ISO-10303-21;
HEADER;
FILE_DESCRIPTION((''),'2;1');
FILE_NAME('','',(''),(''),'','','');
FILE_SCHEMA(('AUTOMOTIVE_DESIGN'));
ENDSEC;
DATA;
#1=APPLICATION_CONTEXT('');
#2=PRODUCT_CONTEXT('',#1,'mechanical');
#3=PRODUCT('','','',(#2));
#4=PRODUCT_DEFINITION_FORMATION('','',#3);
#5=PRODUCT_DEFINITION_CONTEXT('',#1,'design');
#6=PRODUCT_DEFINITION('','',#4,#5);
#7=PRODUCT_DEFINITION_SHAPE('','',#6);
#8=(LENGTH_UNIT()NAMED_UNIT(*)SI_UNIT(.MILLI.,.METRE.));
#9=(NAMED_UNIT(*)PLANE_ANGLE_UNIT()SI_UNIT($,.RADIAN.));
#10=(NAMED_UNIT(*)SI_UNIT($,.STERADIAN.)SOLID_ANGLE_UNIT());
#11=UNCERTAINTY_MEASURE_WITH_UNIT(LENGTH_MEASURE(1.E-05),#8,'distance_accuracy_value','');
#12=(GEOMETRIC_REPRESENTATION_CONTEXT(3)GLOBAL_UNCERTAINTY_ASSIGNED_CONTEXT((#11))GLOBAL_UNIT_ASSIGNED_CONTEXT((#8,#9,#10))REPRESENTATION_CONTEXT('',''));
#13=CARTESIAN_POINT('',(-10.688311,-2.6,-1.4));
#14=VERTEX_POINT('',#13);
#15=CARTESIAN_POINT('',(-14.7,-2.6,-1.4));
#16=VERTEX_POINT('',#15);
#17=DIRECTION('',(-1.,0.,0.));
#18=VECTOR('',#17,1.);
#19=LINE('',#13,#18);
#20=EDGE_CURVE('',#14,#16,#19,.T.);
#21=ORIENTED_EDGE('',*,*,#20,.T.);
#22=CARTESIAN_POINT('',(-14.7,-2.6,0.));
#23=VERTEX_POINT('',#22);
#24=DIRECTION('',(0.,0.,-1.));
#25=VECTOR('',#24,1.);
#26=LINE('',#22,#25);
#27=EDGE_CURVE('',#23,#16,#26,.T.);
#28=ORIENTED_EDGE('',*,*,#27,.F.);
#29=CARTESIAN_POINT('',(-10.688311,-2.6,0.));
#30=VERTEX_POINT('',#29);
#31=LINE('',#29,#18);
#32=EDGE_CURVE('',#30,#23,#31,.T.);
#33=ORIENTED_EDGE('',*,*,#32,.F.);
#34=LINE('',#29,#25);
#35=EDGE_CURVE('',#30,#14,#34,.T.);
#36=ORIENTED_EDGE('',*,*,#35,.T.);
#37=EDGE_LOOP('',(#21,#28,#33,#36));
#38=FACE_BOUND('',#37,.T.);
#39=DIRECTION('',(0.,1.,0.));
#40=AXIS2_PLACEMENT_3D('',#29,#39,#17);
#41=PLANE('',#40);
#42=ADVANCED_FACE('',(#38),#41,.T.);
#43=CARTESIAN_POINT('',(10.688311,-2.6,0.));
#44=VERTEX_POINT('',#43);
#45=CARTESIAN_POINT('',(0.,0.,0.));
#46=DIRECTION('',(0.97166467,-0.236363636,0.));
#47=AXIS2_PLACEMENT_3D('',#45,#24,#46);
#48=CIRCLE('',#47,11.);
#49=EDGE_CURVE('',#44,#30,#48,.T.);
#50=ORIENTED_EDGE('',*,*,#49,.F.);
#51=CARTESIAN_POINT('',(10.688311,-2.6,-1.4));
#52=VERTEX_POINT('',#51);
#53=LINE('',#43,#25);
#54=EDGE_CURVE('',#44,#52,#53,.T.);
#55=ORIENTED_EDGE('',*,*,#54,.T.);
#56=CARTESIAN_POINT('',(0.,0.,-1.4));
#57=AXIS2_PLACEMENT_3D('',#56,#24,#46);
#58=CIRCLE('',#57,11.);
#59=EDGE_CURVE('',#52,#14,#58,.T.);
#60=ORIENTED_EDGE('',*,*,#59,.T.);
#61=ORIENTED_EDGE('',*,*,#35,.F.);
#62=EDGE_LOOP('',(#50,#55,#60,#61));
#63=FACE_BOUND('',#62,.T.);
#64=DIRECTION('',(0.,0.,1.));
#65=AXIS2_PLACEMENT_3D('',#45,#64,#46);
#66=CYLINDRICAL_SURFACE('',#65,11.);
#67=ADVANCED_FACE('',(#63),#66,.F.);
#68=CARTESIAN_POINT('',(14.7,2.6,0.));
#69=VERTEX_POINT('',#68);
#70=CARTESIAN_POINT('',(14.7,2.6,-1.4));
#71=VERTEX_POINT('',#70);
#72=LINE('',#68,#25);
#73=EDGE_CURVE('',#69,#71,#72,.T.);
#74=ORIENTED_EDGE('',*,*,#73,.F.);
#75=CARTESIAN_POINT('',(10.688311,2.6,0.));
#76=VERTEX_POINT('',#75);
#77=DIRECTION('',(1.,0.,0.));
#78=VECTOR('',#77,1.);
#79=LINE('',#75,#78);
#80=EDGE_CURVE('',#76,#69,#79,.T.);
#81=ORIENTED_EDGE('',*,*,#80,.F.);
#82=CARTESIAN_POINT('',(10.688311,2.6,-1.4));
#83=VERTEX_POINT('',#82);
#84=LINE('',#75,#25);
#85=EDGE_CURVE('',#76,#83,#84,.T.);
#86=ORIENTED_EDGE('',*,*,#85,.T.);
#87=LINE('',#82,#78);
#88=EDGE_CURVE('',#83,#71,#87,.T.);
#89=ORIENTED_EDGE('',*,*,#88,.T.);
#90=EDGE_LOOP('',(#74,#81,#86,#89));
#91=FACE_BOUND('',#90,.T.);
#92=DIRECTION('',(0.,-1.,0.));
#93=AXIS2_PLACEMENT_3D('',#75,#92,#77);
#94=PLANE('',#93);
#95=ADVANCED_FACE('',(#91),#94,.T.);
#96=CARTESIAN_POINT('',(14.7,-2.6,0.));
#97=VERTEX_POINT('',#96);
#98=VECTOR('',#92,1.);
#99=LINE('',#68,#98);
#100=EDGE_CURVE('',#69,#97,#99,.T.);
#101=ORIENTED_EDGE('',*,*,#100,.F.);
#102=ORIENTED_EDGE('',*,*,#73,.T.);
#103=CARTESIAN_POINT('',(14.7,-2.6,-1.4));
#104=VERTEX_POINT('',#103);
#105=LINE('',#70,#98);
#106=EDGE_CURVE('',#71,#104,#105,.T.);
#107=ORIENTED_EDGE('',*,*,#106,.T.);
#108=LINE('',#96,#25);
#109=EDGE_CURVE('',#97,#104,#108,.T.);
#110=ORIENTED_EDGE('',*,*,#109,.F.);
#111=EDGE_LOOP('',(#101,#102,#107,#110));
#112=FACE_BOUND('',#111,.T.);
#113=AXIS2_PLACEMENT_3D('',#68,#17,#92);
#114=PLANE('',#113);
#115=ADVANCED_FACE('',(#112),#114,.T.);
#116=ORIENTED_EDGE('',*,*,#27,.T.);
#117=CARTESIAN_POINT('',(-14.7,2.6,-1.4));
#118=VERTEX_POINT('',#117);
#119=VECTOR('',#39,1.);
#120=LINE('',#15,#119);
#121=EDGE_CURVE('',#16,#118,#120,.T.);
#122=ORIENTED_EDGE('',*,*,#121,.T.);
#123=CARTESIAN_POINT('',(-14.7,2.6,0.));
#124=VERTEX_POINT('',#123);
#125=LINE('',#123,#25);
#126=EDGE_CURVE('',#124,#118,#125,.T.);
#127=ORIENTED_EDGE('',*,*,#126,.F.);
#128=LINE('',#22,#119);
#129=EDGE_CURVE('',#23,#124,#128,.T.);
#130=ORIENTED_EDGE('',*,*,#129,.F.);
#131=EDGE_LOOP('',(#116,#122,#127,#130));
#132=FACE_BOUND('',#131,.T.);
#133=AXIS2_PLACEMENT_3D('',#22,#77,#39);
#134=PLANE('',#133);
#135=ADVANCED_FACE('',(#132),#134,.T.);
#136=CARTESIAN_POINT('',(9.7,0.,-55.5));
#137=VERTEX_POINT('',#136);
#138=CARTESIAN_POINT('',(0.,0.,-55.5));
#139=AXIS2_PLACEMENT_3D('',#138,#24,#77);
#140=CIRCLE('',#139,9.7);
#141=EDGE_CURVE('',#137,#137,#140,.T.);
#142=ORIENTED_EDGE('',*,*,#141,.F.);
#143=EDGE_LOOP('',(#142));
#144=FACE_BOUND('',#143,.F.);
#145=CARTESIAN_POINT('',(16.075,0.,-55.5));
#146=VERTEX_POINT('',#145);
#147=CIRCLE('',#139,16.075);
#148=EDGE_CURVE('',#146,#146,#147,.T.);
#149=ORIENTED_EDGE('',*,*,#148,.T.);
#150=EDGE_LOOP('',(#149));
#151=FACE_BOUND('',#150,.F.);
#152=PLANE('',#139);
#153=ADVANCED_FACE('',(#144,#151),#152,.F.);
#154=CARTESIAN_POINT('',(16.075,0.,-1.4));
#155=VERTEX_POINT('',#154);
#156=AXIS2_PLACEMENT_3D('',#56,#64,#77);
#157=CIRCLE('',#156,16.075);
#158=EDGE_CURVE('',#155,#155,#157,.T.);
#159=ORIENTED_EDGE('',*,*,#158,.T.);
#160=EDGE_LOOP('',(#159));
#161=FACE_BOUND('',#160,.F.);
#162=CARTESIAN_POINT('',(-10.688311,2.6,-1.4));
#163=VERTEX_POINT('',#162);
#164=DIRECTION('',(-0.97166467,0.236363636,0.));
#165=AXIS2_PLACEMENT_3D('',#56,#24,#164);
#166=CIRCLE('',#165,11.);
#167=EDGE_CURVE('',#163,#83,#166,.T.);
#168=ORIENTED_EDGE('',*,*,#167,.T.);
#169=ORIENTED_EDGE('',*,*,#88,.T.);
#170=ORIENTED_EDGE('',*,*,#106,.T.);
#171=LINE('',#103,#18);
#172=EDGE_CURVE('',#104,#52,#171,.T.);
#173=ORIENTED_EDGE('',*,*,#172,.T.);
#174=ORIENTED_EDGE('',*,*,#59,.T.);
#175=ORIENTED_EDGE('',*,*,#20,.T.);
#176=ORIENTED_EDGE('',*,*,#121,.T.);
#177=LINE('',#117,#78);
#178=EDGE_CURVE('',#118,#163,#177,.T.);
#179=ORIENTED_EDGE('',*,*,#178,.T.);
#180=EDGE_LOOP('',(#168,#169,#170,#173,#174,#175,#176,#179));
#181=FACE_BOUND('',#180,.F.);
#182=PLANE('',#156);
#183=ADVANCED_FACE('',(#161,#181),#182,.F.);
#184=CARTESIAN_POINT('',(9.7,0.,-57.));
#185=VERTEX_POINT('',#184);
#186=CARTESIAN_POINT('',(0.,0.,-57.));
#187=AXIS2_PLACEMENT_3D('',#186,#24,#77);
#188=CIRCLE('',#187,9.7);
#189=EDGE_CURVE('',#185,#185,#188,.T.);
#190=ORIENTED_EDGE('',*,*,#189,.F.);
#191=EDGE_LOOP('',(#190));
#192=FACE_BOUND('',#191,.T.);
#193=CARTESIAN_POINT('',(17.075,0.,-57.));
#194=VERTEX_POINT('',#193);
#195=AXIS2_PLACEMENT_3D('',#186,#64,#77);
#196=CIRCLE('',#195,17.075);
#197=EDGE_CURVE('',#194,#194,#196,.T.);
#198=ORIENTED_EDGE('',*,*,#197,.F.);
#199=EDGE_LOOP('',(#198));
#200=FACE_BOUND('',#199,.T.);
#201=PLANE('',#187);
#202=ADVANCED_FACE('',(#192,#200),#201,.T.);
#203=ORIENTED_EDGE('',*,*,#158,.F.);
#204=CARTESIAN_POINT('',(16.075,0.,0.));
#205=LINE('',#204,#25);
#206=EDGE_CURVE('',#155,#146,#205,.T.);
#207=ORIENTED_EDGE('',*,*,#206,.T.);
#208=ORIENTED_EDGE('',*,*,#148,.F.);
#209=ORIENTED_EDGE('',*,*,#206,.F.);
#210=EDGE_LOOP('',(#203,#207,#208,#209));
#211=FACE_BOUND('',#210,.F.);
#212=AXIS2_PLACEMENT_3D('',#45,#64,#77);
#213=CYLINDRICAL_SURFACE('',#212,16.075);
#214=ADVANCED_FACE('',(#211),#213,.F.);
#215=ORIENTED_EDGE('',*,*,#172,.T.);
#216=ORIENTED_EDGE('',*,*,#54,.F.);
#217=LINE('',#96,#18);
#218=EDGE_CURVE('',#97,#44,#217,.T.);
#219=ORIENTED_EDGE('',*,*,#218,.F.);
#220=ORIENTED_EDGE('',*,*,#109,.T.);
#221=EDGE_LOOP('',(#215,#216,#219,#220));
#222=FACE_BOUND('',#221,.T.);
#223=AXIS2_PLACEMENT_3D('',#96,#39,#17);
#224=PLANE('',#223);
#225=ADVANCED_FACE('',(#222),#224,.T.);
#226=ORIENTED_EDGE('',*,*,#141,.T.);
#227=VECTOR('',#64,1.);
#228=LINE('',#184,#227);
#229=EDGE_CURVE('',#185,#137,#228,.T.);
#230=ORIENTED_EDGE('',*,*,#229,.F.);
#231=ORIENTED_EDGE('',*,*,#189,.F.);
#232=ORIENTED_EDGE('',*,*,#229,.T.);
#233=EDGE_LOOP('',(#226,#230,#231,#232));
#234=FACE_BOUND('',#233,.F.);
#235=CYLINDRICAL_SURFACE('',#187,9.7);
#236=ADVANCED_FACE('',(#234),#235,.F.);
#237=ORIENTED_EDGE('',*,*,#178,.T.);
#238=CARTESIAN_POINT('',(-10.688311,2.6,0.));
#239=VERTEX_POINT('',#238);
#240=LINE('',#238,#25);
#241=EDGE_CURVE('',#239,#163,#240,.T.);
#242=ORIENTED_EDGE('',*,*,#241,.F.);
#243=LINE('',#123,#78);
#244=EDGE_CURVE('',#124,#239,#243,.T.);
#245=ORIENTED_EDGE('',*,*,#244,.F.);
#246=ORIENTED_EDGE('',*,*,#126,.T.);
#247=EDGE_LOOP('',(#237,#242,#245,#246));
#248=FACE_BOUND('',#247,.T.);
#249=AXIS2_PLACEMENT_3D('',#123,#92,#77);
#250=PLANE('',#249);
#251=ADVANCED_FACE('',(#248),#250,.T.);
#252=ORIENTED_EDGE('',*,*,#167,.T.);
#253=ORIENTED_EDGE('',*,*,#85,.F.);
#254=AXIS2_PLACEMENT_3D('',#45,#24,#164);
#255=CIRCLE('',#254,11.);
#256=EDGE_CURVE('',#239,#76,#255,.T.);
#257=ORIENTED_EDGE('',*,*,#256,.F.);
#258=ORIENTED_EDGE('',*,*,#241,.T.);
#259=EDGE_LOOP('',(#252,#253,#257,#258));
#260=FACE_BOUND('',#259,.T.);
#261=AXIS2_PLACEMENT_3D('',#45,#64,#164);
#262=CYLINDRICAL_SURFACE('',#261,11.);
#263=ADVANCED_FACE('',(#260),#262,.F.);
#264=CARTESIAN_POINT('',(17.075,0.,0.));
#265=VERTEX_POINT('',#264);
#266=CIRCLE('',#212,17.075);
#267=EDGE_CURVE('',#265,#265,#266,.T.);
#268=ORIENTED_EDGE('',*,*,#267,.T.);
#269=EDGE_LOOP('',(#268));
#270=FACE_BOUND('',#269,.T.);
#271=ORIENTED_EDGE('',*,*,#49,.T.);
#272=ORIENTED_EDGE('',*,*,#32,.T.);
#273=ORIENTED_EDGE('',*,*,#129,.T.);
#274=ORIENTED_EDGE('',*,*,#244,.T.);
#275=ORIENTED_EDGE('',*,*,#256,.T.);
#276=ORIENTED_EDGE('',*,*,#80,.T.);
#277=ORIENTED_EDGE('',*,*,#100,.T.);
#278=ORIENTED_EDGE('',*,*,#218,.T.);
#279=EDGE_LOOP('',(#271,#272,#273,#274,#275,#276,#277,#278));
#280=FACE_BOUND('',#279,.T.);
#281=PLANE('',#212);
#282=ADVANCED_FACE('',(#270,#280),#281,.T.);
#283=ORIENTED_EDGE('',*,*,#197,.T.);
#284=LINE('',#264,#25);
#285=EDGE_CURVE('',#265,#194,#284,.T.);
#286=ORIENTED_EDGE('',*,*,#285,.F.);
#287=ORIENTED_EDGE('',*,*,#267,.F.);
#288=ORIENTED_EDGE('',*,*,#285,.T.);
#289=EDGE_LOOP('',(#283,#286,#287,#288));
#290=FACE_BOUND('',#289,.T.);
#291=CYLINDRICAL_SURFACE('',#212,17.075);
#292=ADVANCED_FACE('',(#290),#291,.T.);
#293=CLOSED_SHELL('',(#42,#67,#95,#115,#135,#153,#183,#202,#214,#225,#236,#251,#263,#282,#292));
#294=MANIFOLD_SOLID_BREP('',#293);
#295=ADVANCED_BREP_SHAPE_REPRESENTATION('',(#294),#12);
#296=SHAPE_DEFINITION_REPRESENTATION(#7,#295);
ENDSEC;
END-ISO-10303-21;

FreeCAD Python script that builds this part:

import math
import FreeCAD as App
import Part
import Sketcher
from FreeCAD import Vector
Q = App.Units.Quantity

doc = App.newDocument("Part")
body = doc.addObject("PartDesign::Body", "Body")

# Sketch on XY plane
sketch1 = body.newObject("Sketcher::SketchObject", "Sketch")
sketch1.AttachmentSupport = (doc.getObject("XY_Plane"), [""])
sketch1.MapMode = "FlatFace"
sketch1.addGeometry(Part.Circle(Vector(0, 0, 0), Vector(0, 0, 1), 17.075), False)
sketch1.addGeometry(Part.Circle(Vector(0, 0, 0), Vector(0, 0, 1), 16.075), False)
sketch1.addConstraint(Sketcher.Constraint("Coincident", 0, 3, -1, 1))
sketch1.addConstraint(Sketcher.Constraint("Coincident", 1, 3, -1, 1))
sketch1.addConstraint(Sketcher.Constraint("Diameter", 0, Q("34.15 mm")))
sketch1.addConstraint(Sketcher.Constraint("Diameter", 1, Q("32.15 mm")))
pad1 = body.newObject("PartDesign::Pad", "Pad")
pad1.Profile = sketch1
pad1.Length = 57
pad1.Reversed = True

# Sketch on XY plane
sketch2 = body.newObject("Sketcher::SketchObject", "Sketch001")
sketch2.AttachmentSupport = (doc.getObject("XY_Plane"), [""])
sketch2.MapMode = "FlatFace"
sketch2.addGeometry(Part.Circle(Vector(0, 0, 0), Vector(0, 0, 1), 16.075), False)
sketch2.addGeometry(Part.LineSegment(Vector(-14.7, 2.6, 0), Vector(-10.688311, 2.6, 0)), False)
sketch2.addGeometry(Part.ArcOfCircle(Part.Circle(Vector(0, 0, 0), Vector(0, 0, 1), 11), math.radians(13.672018), math.radians(166.327982)), False)
sketch2.addGeometry(Part.LineSegment(Vector(10.688311, 2.6, 0), Vector(14.7, 2.6, 0)), False)
sketch2.addGeometry(Part.LineSegment(Vector(14.7, 2.6, 0), Vector(14.7, -2.6, 0)), False)
sketch2.addGeometry(Part.LineSegment(Vector(14.7, -2.6, 0), Vector(10.688311, -2.6, 0)), False)
sketch2.addGeometry(Part.ArcOfCircle(Part.Circle(Vector(0, 0, 0), Vector(0, 0, 1), 11), math.radians(-166.327982), math.radians(-13.672018)), False)
sketch2.addGeometry(Part.LineSegment(Vector(-10.688311, -2.6, 0), Vector(-14.7, -2.6, 0)), False)
sketch2.addGeometry(Part.LineSegment(Vector(-14.7, -2.6, 0), Vector(-14.7, 2.6, 0)), False)
sketch2.addConstraint(Sketcher.Constraint("Coincident", 1, 2, 2, 2))
sketch2.addConstraint(Sketcher.Constraint("Coincident", 2, 1, 3, 1))
sketch2.addConstraint(Sketcher.Constraint("Coincident", 3, 2, 4, 1))
sketch2.addConstraint(Sketcher.Constraint("Coincident", 4, 2, 5, 1))
sketch2.addConstraint(Sketcher.Constraint("Coincident", 5, 2, 6, 2))
sketch2.addConstraint(Sketcher.Constraint("Coincident", 6, 1, 7, 1))
sketch2.addConstraint(Sketcher.Constraint("Coincident", 7, 2, 8, 1))
sketch2.addConstraint(Sketcher.Constraint("Coincident", 8, 2, 1, 1))
sketch2.addConstraint(Sketcher.Constraint("Horizontal", 1))
sketch2.addConstraint(Sketcher.Constraint("Horizontal", 3))
sketch2.addConstraint(Sketcher.Constraint("Vertical", 4))
sketch2.addConstraint(Sketcher.Constraint("Horizontal", 5))
sketch2.addConstraint(Sketcher.Constraint("Horizontal", 7))
sketch2.addConstraint(Sketcher.Constraint("Vertical", 8))
sketch2.addConstraint(Sketcher.Constraint("Coincident", 0, 3, -1, 1))
sketch2.addConstraint(Sketcher.Constraint("Coincident", 2, 3, -1, 1))
sketch2.addConstraint(Sketcher.Constraint("Coincident", 6, 3, -1, 1))
sketch2.addConstraint(Sketcher.Constraint("Equal", 2, 6))
sketch2.addConstraint(Sketcher.Constraint("Symmetric", 3, 2, 7, 2, -1, 1))
sketch2.addConstraint(Sketcher.Constraint("Horizontal", 1, 2, 2, 1))
sketch2.addConstraint(Sketcher.Constraint("Horizontal", 5, 2, 6, 1))
sketch2.addConstraint(Sketcher.Constraint("Radius", 2, Q("11 mm")))
sketch2.addConstraint(Sketcher.Constraint("Diameter", 0, Q("32.15 mm")))
sketch2.addConstraint(Sketcher.Constraint("DistanceY", 4, 2, 4, 1, Q("5.2 mm")))
sketch2.addConstraint(Sketcher.Constraint("DistanceX", -1, 1, 3, 2, Q("14.7 mm")))
pad2 = body.newObject("PartDesign::Pad", "Pad001")
pad2.Profile = sketch2
pad2.Length = 1.4
pad2.Reversed = True

# Sketch on XY plane
sketch3 = body.newObject("Sketcher::SketchObject", "Sketch002")
sketch3.AttachmentSupport = (doc.getObject("XY_Plane"), [""])
sketch3.MapMode = "FlatFace"
sketch3.AttachmentOffset = App.Placement(Vector(0, 0, -57), App.Rotation())
sketch3.addGeometry(Part.Circle(Vector(0, 0, 0), Vector(0, 0, 1), 16.075), False)
sketch3.addGeometry(Part.Circle(Vector(0, 0, 0), Vector(0, 0, 1), 9.7), False)
sketch3.addConstraint(Sketcher.Constraint("Coincident", 0, 3, -1, 1))
sketch3.addConstraint(Sketcher.Constraint("Coincident", 1, 3, -1, 1))
sketch3.addConstraint(Sketcher.Constraint("Diameter", 1, Q("19.4 mm")))
sketch3.addConstraint(Sketcher.Constraint("Diameter", 0, Q("32.15 mm")))
pad3 = body.newObject("PartDesign::Pad", "Pad002")
pad3.Profile = sketch3
pad3.Length = 1.5

doc.recompute()
